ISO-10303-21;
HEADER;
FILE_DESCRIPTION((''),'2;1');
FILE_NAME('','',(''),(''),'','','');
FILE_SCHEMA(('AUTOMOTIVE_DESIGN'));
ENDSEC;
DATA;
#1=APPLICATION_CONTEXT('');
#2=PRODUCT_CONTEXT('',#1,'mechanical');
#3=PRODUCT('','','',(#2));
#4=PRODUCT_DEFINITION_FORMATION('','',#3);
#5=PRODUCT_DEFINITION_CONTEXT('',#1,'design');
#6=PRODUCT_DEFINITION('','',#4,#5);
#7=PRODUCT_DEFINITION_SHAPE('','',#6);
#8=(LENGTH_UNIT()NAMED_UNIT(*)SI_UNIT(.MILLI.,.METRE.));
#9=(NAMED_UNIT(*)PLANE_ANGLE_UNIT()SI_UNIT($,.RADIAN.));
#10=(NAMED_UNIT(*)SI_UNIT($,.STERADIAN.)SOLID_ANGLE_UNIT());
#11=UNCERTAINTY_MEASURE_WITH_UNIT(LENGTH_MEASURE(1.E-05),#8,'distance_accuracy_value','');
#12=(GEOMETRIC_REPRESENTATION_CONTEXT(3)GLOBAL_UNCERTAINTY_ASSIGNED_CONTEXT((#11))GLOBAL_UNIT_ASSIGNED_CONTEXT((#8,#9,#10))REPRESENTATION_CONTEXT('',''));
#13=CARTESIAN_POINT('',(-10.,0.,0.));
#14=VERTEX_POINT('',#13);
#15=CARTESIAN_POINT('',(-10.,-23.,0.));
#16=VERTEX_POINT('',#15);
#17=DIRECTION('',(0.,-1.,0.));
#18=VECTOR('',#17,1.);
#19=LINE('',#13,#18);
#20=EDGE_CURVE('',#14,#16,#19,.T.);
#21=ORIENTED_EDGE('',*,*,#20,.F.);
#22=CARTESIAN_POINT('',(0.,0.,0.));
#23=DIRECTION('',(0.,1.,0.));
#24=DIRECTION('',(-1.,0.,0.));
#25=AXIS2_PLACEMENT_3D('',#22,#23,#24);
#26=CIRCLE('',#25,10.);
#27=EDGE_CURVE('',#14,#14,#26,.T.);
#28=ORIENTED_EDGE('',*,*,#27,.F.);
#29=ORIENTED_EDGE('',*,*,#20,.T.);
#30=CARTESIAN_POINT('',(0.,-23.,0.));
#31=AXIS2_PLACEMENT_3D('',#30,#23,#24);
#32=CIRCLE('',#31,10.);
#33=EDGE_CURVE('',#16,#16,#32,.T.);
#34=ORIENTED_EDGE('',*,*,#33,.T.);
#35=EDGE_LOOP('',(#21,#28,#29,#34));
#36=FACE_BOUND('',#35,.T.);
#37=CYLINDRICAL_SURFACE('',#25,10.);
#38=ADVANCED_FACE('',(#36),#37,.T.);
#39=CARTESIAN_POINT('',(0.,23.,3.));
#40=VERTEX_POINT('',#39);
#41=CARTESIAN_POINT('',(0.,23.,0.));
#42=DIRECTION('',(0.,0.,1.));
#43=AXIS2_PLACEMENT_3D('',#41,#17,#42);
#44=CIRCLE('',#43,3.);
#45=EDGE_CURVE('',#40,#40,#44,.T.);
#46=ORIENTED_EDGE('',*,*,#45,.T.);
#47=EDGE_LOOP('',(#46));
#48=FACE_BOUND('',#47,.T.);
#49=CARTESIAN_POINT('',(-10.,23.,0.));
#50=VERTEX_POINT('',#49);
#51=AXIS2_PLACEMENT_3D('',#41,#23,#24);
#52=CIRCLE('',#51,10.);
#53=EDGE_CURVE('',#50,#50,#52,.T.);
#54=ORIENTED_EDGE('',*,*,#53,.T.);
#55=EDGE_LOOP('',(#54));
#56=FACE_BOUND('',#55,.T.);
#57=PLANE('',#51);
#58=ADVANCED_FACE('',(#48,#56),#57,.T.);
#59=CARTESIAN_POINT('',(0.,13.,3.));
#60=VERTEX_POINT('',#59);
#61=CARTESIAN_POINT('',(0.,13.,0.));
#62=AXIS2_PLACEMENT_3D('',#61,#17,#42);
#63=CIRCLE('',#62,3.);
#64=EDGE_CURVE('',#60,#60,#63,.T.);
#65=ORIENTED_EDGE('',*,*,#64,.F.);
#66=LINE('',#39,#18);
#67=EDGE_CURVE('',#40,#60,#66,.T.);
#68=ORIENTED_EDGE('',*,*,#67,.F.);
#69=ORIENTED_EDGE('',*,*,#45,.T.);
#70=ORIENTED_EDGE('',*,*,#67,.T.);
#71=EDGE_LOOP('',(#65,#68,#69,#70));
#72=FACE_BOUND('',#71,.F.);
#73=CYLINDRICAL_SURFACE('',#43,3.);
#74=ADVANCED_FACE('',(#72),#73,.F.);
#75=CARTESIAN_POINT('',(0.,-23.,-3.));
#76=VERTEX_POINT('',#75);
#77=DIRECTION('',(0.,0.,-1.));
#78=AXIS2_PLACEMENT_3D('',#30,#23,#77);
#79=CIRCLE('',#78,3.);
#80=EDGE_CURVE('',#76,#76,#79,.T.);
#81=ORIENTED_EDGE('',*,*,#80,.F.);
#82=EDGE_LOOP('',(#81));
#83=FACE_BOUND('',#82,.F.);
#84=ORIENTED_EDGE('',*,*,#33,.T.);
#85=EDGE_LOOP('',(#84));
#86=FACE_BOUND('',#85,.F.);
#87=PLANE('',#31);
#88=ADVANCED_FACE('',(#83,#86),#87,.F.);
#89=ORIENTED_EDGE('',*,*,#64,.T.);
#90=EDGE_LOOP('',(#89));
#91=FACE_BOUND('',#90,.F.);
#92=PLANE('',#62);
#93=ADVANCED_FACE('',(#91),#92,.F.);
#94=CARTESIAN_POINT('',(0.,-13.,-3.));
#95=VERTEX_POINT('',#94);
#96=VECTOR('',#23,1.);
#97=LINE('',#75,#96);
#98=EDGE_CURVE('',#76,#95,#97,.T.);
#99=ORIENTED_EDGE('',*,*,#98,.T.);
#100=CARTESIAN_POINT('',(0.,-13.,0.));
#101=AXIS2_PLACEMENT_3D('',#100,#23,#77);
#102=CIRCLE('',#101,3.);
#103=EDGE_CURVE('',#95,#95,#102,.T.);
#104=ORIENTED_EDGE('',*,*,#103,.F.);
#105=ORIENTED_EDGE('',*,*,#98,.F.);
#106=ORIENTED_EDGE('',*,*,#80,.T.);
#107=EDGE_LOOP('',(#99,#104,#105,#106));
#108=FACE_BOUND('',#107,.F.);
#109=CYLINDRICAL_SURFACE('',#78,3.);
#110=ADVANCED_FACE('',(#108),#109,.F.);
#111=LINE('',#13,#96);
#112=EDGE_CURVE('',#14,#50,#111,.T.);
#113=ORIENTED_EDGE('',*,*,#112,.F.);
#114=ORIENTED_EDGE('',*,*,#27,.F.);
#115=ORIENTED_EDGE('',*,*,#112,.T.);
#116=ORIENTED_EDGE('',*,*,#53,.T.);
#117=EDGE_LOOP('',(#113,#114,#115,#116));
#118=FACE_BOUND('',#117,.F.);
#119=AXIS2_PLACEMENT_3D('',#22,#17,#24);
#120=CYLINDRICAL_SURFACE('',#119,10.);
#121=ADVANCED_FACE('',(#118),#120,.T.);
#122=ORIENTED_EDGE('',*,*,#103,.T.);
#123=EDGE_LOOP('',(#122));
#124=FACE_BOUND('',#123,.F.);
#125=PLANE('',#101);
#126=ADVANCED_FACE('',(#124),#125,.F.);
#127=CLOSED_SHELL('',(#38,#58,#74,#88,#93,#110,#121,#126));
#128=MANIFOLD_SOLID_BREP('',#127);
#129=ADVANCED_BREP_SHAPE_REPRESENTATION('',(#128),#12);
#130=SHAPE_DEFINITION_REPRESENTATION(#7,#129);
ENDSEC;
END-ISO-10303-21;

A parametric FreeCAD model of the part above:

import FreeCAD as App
import Part
import Sketcher

doc = App.newDocument("Part")
params = doc.addObject("Spreadsheet::Sheet", "Params")
for row, (alias, value) in enumerate([
    ("sketch1_diameter", "20 mm"),
    ("pad1_length", "46 mm"),
    ("sketch2_diameter", "6 mm"),
    ("hole_diameter", "6 mm"),
    ("hole_depth", "10 mm"),
    ("sketch3_diameter", "6 mm"),
    ("hole2_diameter", "6 mm"),
    ("hole2_depth", "10 mm"),
], start=1):
    params.set(f"A{row}", alias)
    params.set(f"B{row}", "=" + value)
    params.setAlias(f"B{row}", alias)

body = doc.addObject("PartDesign::Body", "Body")

sketch1 = body.newObject("Sketcher::SketchObject", "Sketch")
sketch1.AttachmentSupport = (doc.getObject("XZ_Plane"), [""])
sketch1.MapMode = "FlatFace"
sketch1.addGeometry(Part.Circle(App.Vector(0, 0, 0), App.Vector(0, 0, 1), 10), False)
sketch1.addConstraint([
    Sketcher.Constraint("Coincident", 0, 3, -1, 1),
    Sketcher.Constraint("Diameter", 0, 20.0),
])
sketch1.setExpression("Constraints[1]", "Params.sketch1_diameter")
pad1 = body.newObject("PartDesign::Pad", "Pad")
pad1.Profile = sketch1
pad1.setExpression("Length", "Params.pad1_length")
pad1.Midplane = True

sketch2 = body.newObject("Sketcher::SketchObject", "Sketch001")
sketch2.AttachmentSupport = (doc.getObject("XZ_Plane"), [""])
sketch2.MapMode = "FlatFace"
sketch2.AttachmentOffset = App.Placement(App.Vector(0, 0, -23), App.Rotation())
sketch2.addGeometry(Part.Circle(App.Vector(0, 0, 0), App.Vector(0, 0, 1), 3), False)
sketch2.addConstraint([
    Sketcher.Constraint("Coincident", 0, 3, -1, 1),
    Sketcher.Constraint("Diameter", 0, 6.0),
])
sketch2.setExpression("Constraints[1]", "Params.sketch2_diameter")
doc.recompute()
hole = body.newObject("PartDesign::Hole", "Hole")
hole.Profile = sketch2
hole.ThreadType = "None"
hole.setExpression("Diameter", "Params.hole_diameter")
hole.DepthType = "Dimension"
hole.setExpression("Depth", "Params.hole_depth")
hole.DrillPoint = "Flat"
hole.Reversed = True

sketch3 = body.newObject("Sketcher::SketchObject", "Sketch002")
sketch3.AttachmentSupport = (doc.getObject("XZ_Plane"), [""])
sketch3.MapMode = "FlatFace"
sketch3.AttachmentOffset = App.Placement(App.Vector(0, 0, 23), App.Rotation())
sketch3.addGeometry(Part.Circle(App.Vector(0, 0, 0), App.Vector(0, 0, 1), 3), False)
sketch3.addConstraint([
    Sketcher.Constraint("Coincident", 0, 3, -1, 1),
    Sketcher.Constraint("Diameter", 0, 6.0),
])
sketch3.setExpression("Constraints[1]", "Params.sketch3_diameter")
doc.recompute()
hole2 = body.newObject("PartDesign::Hole", "Hole001")
hole2.Profile = sketch3
hole2.ThreadType = "None"
hole2.setExpression("Diameter", "Params.hole2_diameter")
hole2.DepthType = "Dimension"
hole2.setExpression("Depth", "Params.hole2_depth")
hole2.DrillPoint = "Flat"

doc.recompute()
